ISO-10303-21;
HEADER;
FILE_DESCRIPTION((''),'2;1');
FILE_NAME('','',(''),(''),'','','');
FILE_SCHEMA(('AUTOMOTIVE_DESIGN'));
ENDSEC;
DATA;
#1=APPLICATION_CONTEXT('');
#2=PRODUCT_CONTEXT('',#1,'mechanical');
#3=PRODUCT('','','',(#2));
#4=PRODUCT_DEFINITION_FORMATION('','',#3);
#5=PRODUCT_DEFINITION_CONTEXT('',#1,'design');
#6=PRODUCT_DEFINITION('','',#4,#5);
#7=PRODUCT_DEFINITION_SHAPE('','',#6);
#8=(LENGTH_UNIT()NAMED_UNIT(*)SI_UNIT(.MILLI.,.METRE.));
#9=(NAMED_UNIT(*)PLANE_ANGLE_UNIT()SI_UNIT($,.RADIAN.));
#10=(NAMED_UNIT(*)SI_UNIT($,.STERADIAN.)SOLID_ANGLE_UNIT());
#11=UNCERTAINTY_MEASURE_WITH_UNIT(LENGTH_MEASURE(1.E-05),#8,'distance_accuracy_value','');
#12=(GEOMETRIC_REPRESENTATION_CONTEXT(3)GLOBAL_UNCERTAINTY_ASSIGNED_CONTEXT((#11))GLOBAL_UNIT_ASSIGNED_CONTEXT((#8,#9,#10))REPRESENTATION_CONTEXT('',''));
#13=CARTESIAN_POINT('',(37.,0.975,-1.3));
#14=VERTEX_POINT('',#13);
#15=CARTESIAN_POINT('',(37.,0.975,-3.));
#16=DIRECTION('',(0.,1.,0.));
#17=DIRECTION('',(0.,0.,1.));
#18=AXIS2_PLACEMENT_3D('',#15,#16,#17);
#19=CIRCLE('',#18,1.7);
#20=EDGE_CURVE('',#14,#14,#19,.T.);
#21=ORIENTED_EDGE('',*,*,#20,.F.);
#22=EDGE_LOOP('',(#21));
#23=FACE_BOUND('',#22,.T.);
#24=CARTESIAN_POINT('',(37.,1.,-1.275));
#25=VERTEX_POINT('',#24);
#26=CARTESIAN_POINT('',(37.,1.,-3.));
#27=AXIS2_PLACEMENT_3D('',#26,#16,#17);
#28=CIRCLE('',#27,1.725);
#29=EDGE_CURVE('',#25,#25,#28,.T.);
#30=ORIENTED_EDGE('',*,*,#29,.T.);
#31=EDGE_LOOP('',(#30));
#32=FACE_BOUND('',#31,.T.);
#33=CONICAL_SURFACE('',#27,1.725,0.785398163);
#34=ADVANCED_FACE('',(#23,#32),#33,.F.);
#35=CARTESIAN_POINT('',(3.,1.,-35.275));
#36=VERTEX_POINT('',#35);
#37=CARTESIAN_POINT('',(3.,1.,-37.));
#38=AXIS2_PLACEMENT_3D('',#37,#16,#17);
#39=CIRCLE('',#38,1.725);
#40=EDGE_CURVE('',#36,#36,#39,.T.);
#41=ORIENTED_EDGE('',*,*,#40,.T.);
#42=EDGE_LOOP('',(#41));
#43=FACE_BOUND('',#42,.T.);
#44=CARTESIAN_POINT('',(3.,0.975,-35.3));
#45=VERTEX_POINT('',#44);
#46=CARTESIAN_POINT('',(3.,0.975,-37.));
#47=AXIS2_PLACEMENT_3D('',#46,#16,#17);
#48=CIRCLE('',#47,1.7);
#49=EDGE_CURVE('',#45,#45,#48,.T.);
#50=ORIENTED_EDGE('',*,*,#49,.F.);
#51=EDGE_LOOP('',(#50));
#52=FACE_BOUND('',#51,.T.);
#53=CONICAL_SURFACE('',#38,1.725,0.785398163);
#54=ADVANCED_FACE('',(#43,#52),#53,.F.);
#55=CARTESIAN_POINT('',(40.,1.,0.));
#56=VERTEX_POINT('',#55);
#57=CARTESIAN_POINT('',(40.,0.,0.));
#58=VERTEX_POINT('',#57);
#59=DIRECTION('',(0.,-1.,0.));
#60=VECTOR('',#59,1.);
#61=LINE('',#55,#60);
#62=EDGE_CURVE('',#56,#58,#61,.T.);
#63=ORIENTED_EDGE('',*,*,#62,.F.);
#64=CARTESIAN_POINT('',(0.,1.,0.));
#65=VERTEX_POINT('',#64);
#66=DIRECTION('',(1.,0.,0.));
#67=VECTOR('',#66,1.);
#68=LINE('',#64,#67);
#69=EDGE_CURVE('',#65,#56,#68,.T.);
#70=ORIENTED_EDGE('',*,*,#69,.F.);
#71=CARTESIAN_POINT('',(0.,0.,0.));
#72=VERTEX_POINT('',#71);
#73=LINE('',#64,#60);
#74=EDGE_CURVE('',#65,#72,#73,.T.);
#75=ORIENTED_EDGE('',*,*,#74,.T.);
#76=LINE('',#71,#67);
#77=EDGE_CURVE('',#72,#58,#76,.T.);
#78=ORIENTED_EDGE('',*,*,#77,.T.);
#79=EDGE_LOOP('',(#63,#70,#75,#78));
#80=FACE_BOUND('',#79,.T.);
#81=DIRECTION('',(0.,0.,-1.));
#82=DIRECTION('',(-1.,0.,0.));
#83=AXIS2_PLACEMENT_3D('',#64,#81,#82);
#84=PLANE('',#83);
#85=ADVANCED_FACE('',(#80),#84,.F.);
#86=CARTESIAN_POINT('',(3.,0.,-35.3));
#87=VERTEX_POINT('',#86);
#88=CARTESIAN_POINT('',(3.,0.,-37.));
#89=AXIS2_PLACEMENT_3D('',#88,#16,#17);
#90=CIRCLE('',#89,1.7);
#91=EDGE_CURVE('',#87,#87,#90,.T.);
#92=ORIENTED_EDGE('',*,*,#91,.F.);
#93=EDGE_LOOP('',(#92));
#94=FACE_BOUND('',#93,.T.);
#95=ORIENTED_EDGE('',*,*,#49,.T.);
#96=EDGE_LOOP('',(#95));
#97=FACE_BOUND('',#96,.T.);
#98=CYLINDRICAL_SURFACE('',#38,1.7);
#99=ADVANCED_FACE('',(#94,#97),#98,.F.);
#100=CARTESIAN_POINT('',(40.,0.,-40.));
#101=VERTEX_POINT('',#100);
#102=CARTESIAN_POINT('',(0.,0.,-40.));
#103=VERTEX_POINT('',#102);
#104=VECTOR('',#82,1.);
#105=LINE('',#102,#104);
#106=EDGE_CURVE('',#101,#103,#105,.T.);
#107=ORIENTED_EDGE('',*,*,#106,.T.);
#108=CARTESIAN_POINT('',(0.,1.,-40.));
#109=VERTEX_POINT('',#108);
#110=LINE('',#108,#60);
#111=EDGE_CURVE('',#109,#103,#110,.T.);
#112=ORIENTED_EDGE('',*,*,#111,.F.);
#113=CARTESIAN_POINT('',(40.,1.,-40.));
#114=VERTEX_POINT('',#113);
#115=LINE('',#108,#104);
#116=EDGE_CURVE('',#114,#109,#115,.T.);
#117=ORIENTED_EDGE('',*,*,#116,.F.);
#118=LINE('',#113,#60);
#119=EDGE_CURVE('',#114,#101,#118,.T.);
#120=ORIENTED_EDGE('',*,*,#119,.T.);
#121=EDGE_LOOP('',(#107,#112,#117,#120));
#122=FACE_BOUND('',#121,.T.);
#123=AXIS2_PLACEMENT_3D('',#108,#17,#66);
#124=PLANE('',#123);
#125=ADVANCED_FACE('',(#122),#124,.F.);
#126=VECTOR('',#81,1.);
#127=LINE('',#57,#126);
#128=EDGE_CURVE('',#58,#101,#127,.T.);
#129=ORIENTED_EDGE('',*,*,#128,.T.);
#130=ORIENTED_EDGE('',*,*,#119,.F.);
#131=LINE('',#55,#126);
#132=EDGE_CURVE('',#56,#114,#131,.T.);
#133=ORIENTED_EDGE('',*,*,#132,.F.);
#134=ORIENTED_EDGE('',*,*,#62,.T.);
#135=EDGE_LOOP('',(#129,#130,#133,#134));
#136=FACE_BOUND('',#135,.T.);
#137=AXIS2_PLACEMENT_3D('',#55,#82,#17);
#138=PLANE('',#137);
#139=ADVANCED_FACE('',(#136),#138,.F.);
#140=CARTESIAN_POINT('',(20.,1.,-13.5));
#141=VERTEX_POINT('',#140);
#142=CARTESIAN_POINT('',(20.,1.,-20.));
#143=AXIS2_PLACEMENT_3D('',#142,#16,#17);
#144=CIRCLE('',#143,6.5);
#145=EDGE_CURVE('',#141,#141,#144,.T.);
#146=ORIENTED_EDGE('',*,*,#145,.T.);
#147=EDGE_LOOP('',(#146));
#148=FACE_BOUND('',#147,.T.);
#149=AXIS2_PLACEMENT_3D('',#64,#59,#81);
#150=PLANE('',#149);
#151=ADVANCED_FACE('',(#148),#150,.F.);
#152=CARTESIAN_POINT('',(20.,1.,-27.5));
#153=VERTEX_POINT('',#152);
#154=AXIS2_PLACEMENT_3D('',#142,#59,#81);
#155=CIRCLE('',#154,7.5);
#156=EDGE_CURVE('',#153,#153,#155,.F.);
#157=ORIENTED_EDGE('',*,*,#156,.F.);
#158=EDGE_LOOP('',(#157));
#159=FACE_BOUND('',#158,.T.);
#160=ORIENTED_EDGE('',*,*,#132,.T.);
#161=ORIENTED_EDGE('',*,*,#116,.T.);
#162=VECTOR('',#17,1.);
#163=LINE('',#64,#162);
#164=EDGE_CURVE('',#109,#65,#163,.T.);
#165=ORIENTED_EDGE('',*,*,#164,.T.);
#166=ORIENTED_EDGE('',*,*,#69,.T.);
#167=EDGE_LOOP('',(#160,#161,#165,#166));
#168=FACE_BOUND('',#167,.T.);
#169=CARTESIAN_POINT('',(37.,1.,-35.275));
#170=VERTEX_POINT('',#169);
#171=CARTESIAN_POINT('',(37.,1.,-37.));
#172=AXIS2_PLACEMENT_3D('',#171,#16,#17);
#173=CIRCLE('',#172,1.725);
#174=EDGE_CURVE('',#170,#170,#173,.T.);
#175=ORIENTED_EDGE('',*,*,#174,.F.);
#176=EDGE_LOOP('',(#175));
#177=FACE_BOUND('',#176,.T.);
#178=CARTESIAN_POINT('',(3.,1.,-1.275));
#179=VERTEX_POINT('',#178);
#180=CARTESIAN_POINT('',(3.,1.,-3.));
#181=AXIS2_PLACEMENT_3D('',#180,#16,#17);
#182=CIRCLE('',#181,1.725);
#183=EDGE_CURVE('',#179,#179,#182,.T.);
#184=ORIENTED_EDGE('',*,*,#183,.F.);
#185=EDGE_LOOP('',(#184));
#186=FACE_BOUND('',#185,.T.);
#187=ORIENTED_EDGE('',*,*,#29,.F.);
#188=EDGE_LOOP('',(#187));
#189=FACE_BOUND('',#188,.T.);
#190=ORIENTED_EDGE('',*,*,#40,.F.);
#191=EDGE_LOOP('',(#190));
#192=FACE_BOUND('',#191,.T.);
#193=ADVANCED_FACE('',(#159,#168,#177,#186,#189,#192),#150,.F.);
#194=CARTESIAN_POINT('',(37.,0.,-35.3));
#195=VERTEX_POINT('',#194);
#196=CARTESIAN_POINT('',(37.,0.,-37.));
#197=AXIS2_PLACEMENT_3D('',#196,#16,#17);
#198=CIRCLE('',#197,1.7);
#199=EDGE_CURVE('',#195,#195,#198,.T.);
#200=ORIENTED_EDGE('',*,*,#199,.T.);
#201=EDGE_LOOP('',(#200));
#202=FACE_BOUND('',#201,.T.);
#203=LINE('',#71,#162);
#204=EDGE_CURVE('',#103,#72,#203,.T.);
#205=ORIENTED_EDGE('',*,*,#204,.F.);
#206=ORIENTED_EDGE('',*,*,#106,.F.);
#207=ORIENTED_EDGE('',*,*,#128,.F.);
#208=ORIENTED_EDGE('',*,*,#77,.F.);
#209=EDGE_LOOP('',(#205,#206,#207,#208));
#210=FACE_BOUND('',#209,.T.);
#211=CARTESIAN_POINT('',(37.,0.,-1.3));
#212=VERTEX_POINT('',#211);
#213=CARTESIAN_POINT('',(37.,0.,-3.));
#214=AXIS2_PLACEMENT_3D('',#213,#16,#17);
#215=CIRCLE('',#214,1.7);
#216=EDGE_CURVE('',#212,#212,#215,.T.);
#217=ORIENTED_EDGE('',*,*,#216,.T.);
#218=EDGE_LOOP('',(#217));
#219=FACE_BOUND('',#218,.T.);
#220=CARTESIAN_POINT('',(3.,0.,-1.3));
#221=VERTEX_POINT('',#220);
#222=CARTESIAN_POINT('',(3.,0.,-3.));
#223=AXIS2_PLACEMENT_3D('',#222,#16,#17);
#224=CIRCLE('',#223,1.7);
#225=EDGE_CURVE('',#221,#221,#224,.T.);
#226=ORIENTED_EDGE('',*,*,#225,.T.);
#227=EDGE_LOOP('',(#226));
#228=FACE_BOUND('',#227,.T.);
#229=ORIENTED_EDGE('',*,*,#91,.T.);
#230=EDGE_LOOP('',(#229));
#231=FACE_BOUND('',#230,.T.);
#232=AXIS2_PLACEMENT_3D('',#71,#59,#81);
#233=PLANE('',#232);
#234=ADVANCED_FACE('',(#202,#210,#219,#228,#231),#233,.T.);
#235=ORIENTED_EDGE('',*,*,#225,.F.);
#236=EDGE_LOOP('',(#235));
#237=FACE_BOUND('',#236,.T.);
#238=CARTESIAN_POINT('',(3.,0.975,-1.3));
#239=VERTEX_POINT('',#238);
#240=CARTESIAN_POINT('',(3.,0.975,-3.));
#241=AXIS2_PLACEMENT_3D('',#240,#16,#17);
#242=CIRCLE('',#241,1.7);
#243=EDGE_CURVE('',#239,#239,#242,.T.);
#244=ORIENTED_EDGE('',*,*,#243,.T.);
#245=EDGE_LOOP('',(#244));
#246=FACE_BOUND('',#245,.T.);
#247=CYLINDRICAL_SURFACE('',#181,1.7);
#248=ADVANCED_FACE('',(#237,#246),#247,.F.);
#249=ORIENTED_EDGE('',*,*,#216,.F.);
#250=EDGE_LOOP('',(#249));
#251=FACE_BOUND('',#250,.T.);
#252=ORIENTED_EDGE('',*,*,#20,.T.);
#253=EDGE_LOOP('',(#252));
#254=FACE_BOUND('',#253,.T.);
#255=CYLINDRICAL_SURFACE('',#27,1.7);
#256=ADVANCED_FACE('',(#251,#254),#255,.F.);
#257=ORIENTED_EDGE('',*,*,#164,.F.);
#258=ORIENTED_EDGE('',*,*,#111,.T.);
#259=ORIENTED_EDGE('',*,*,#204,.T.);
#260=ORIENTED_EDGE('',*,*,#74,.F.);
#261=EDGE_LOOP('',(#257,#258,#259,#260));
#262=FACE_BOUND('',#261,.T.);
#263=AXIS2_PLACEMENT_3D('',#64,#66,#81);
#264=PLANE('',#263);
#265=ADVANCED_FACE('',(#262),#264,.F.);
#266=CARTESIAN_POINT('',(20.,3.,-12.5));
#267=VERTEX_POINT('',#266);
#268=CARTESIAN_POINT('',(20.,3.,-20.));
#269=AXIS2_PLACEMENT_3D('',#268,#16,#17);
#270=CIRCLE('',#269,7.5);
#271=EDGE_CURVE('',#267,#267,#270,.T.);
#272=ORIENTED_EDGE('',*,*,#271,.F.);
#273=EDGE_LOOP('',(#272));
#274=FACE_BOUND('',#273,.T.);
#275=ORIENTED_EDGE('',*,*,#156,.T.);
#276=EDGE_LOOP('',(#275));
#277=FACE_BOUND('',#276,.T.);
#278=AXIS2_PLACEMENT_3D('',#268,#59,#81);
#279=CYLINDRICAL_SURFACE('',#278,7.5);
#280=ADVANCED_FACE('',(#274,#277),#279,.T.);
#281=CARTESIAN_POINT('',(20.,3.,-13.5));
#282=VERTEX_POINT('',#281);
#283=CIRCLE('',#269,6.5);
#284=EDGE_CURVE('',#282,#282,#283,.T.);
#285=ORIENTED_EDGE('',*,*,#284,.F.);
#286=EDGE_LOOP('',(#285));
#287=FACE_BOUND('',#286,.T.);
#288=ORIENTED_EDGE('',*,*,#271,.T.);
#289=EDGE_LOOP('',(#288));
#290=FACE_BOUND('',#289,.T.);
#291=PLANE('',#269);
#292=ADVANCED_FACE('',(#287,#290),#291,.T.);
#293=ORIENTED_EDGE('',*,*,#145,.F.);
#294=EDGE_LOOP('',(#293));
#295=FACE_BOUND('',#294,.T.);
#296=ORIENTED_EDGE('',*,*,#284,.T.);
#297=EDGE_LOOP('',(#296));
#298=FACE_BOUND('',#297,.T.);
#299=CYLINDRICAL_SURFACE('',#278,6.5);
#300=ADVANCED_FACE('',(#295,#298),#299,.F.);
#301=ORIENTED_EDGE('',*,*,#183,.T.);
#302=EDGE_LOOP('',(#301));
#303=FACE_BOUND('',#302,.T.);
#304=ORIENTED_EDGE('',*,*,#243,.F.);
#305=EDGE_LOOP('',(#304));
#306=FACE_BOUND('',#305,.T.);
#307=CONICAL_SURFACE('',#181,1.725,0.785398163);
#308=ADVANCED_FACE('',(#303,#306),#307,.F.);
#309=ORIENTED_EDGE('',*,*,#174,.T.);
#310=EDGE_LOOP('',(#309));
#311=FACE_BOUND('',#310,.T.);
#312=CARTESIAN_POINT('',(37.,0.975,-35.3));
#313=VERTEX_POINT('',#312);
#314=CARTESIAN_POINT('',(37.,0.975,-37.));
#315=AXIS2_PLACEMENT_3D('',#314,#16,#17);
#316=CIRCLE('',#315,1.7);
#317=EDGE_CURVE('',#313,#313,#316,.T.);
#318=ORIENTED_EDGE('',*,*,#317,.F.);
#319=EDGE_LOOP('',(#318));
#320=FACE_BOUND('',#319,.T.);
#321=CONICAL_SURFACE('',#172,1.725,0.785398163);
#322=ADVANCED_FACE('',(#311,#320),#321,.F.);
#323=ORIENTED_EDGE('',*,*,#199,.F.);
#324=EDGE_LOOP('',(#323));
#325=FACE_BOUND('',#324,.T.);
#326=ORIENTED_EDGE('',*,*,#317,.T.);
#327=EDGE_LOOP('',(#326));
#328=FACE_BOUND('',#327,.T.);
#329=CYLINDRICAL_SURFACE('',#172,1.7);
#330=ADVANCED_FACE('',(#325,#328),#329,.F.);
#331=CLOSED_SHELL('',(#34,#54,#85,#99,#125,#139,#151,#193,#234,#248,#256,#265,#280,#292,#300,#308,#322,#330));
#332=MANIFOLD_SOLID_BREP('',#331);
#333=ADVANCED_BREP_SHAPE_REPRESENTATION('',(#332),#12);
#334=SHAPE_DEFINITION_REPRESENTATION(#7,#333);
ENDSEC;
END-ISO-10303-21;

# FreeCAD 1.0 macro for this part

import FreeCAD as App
import Part
import Sketcher

V = App.Vector
Q = App.Units.Quantity


def add_polygon(sketch, points):
    """Adds a closed chain of lines whose ends are joined by coincident constraints."""
    first, n = sketch.GeometryCount, len(points)
    for a, b in zip(points, points[1:] + points[:1]):
        sketch.addGeometry(Part.LineSegment(App.Vector(*a, 0), App.Vector(*b, 0)), False)
    for i in range(n):
        sketch.addConstraint(Sketcher.Constraint("Coincident", first + i, 2, first + (i + 1) % n, 1))

doc = App.newDocument("Part")
body = doc.addObject("PartDesign::Body", "Body")

# Sketch on XZ plane
sketch1 = doc.addObject("Sketcher::SketchObject", "Sketch")
body.addObject(sketch1)
sketch1.AttachmentSupport = (doc.XZ_Plane, [""])
sketch1.MapMode = "FlatFace"
add_polygon(sketch1, [(0, -40), (0, 0), (40, 0), (40, -40)])  # lines 0-3
sketch1.addConstraint(Sketcher.Constraint("Vertical", 0))
sketch1.addConstraint(Sketcher.Constraint("Horizontal", 1))
sketch1.addConstraint(Sketcher.Constraint("Vertical", 2))
sketch1.addConstraint(Sketcher.Constraint("Horizontal", 3))
sketch1.addConstraint(Sketcher.Constraint("Coincident", 0, 2, -1, 1))
sketch1.addConstraint(Sketcher.Constraint("Equal", 3, 0))
sketch1.addConstraint(Sketcher.Constraint("DistanceX", 1, 1, 1, 2, Q("40 mm")))
pad1 = doc.addObject("PartDesign::Pad", "Pad")
body.addObject(pad1)
pad1.Profile = sketch1
pad1.Length = 1
pad1.Reversed = True

# Sketch on XZ plane
sketch2 = doc.addObject("Sketcher::SketchObject", "Sketch001")
body.addObject(sketch2)
sketch2.AttachmentSupport = (doc.XZ_Plane, [""])
sketch2.MapMode = "FlatFace"
sketch2.AttachmentOffset = App.Placement(V(0, 0, -1), App.Rotation())
sketch2.addGeometry(Part.Circle(V(20, -20, 0), V(0, 0, 1), 7.5), False)
sketch2.addGeometry(Part.Circle(V(20, -20, 0), V(0, 0, 1), 6.5), False)
sketch2.addConstraint(Sketcher.Constraint("Coincident", 1, 3, 0, 3))
sketch2.addConstraint(Sketcher.Constraint("Diameter", 0, Q("15 mm")))
sketch2.addConstraint(Sketcher.Constraint("Diameter", 1, Q("13 mm")))
sketch2.addConstraint(Sketcher.Constraint("DistanceX", -1, 1, 0, 3, Q("20 mm")))
sketch2.addConstraint(Sketcher.Constraint("DistanceY", 0, 3, -1, 1, Q("20 mm")))
pad2 = doc.addObject("PartDesign::Pad", "Pad001")
body.addObject(pad2)
pad2.Profile = sketch2
pad2.Length = 2
pad2.Reversed = True

# Sketch on YZ plane
sketch3 = doc.addObject("Sketcher::SketchObject", "Sketch002")
body.addObject(sketch3)
sketch3.AttachmentSupport = (doc.YZ_Plane, [""])
sketch3.MapMode = "FlatFace"
sketch3.AttachmentOffset = App.Placement(V(0, 0, 3), App.Rotation())
add_polygon(sketch3, [(0, -3), (1, -3), (1, -1.275), (0.975, -1.3), (0, -1.3)])  # lines 0-4
sketch3.addGeometry(Part.LineSegment(V(1, -3, 0), V(0, -3, 0)), True)  # axis
sketch3.addConstraint(Sketcher.Constraint("Horizontal", 0))
sketch3.addConstraint(Sketcher.Constraint("Vertical", 1))
sketch3.addConstraint(Sketcher.Constraint("Horizontal", 3))
sketch3.addConstraint(Sketcher.Constraint("Vertical", 4))
sketch3.addConstraint(Sketcher.Constraint("Horizontal", 5))
sketch3.addConstraint(Sketcher.Constraint("Coincident", 5, 1, 0, 2))
sketch3.addConstraint(Sketcher.Constraint("PointOnObject", 3, 2, -2))
sketch3.addConstraint(Sketcher.Constraint("PointOnObject", 5, 2, -2))
sketch3.addConstraint(Sketcher.Constraint("DistanceX", 0, 1, 0, 2, Q("1 mm")))
sketch3.addConstraint(Sketcher.Constraint("Angle", 2, Q("-135 deg")))
sketch3.addConstraint(Sketcher.Constraint("DistanceY", 4, 2, 4, 1, Q("1.7 mm")))
sketch3.addConstraint(Sketcher.Constraint("DistanceY", 0, 2, -1, 1, Q("3 mm")))
sketch3.addConstraint(Sketcher.Constraint("DistanceX", 3, 2, 3, 1, Q("0.975 mm")))
groove = doc.addObject("PartDesign::Groove", "Groove")
body.addObject(groove)
groove.Profile = sketch3
groove.ReferenceAxis = (sketch3, ["Axis0"])
groove.Angle = 360
doc.recompute()

linearpattern = doc.addObject("PartDesign::LinearPattern", "LinearPattern")
body.addObject(linearpattern)
linearpattern.Originals = [groove]
linearpattern.Direction = (doc.Z_Axis, [""])
linearpattern.Mode = "offset"
linearpattern.Offset = 34
linearpattern.Occurrences = 2
linearpattern.Reversed = True
body.Tip = linearpattern
doc.recompute()

datumline = doc.addObject("PartDesign::Line", "DatumLine")
body.addObject(datumline)
datumline.Placement = App.Placement(V(0, 0, 0), App.Rotation(V(0, 0, 1), V(0.707106781, 0, -0.707106781)))
linearpattern2 = doc.addObject("PartDesign::LinearPattern", "LinearPattern001")
body.addObject(linearpattern2)
linearpattern2.Originals = [groove]
linearpattern2.Direction = (datumline, [""])
linearpattern2.Mode = "offset"
linearpattern2.Offset = 48.083261
linearpattern2.Occurrences = 2
body.Tip = linearpattern2
doc.recompute()

linearpattern3 = doc.addObject("PartDesign::LinearPattern", "LinearPattern002")
body.addObject(linearpattern3)
linearpattern3.Originals = [groove]
linearpattern3.Direction = (doc.X_Axis, [""])
linearpattern3.Mode = "offset"
linearpattern3.Offset = 34
linearpattern3.Occurrences = 2
body.Tip = linearpattern3

doc.recompute()
